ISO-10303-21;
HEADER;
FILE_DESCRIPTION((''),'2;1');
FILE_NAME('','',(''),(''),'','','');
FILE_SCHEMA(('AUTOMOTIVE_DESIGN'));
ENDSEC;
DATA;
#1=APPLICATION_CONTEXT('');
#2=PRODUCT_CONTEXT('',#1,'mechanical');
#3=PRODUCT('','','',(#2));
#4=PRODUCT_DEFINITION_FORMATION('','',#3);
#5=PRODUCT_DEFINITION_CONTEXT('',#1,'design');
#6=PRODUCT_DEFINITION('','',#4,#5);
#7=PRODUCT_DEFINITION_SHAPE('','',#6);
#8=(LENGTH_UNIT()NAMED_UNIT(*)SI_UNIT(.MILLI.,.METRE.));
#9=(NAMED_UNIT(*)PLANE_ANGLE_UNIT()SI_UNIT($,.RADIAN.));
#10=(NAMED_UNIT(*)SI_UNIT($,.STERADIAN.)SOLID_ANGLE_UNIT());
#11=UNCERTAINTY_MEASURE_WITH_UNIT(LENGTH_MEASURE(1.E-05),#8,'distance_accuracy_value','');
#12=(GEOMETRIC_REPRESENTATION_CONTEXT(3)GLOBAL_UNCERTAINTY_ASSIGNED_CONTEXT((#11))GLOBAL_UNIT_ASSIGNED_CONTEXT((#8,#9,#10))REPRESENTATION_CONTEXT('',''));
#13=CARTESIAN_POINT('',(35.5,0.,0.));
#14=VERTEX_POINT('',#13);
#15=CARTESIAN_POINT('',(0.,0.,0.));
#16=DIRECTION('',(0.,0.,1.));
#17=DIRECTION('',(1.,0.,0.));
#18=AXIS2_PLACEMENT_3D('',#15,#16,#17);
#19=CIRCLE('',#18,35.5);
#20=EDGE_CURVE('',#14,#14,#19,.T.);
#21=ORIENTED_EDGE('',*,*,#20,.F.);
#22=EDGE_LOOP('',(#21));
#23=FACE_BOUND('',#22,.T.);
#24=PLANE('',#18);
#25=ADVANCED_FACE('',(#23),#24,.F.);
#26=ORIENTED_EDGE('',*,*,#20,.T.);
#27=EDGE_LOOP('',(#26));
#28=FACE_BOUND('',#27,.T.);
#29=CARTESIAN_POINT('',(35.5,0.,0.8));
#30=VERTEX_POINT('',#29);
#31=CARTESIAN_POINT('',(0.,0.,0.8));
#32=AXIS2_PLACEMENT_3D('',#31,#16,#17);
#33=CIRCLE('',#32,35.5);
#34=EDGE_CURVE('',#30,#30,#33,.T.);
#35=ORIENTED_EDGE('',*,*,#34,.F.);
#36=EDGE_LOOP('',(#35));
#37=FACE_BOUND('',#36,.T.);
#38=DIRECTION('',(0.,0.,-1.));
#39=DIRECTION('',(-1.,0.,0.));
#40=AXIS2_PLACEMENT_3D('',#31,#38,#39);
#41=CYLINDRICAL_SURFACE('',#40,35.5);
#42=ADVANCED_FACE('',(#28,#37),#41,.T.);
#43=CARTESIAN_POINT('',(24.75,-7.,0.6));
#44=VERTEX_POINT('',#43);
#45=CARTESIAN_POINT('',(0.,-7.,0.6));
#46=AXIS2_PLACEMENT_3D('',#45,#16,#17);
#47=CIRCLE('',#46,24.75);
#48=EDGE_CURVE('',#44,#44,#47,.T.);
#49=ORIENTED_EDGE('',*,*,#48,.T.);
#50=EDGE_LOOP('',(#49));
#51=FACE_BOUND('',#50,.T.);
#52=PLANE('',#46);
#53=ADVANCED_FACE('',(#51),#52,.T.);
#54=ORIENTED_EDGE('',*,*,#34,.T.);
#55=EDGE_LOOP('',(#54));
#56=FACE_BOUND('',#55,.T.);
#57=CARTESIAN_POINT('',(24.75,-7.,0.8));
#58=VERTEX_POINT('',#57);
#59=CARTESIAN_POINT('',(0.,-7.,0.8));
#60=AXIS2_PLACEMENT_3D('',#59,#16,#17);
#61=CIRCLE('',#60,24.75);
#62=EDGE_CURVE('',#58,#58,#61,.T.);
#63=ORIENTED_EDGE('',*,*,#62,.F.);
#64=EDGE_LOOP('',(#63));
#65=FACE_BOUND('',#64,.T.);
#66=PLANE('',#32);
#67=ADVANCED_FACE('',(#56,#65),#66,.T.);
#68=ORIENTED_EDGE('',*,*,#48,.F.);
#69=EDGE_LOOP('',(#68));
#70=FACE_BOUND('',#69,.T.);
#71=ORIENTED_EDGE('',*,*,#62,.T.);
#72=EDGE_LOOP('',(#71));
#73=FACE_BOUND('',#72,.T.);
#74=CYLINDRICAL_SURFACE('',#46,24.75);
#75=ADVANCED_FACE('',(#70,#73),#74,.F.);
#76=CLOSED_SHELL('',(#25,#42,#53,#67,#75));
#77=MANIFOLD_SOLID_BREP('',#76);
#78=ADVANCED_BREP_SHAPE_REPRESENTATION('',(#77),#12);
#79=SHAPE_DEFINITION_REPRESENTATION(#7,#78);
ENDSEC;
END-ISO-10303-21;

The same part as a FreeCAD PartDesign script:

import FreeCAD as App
import Part
import Sketcher
from FreeCAD import Vector

doc = App.newDocument("Part")
body = doc.addObject("PartDesign::Body", "Body")

sketch1 = body.newObject("Sketcher::SketchObject", "Sketch")
sketch1.AttachmentSupport = (doc.getObject("XY_Plane"), [""])
sketch1.MapMode = "FlatFace"
sketch1.addGeometry(Part.Circle(Vector(0, 0, 0), Vector(0, 0, 1), 36), False)
sketch1.addConstraint(Sketcher.Constraint("Coincident", 0, 3, -1, 1))
sketch1.addConstraint(Sketcher.Constraint("Diameter", 0, 71.0))
pad1 = body.newObject("PartDesign::Pad", "Pad")
pad1.Profile = sketch1
pad1.Length = 0.8

sketch2 = body.newObject("Sketcher::SketchObject", "Sketch001")
sketch2.AttachmentSupport = (doc.getObject("XY_Plane"), [""])
sketch2.MapMode = "FlatFace"
sketch2.AttachmentOffset = App.Placement(Vector(0, 0, 0.8), App.Rotation())
sketch2.addGeometry(Part.Circle(Vector(0, -7, 0), Vector(0, 0, 1), 25), False)
sketch2.addConstraint(Sketcher.Constraint("PointOnObject", 0, 3, -2))
sketch2.addConstraint(Sketcher.Constraint("Diameter", 0, 49.5))
sketch2.addConstraint(Sketcher.Constraint("DistanceY", 0, 3, -1, 1, 7.0))
pocket1 = body.newObject("PartDesign::Pocket", "Pocket")
pocket1.Profile = sketch2
pocket1.Length = 0.2

doc.recompute()
